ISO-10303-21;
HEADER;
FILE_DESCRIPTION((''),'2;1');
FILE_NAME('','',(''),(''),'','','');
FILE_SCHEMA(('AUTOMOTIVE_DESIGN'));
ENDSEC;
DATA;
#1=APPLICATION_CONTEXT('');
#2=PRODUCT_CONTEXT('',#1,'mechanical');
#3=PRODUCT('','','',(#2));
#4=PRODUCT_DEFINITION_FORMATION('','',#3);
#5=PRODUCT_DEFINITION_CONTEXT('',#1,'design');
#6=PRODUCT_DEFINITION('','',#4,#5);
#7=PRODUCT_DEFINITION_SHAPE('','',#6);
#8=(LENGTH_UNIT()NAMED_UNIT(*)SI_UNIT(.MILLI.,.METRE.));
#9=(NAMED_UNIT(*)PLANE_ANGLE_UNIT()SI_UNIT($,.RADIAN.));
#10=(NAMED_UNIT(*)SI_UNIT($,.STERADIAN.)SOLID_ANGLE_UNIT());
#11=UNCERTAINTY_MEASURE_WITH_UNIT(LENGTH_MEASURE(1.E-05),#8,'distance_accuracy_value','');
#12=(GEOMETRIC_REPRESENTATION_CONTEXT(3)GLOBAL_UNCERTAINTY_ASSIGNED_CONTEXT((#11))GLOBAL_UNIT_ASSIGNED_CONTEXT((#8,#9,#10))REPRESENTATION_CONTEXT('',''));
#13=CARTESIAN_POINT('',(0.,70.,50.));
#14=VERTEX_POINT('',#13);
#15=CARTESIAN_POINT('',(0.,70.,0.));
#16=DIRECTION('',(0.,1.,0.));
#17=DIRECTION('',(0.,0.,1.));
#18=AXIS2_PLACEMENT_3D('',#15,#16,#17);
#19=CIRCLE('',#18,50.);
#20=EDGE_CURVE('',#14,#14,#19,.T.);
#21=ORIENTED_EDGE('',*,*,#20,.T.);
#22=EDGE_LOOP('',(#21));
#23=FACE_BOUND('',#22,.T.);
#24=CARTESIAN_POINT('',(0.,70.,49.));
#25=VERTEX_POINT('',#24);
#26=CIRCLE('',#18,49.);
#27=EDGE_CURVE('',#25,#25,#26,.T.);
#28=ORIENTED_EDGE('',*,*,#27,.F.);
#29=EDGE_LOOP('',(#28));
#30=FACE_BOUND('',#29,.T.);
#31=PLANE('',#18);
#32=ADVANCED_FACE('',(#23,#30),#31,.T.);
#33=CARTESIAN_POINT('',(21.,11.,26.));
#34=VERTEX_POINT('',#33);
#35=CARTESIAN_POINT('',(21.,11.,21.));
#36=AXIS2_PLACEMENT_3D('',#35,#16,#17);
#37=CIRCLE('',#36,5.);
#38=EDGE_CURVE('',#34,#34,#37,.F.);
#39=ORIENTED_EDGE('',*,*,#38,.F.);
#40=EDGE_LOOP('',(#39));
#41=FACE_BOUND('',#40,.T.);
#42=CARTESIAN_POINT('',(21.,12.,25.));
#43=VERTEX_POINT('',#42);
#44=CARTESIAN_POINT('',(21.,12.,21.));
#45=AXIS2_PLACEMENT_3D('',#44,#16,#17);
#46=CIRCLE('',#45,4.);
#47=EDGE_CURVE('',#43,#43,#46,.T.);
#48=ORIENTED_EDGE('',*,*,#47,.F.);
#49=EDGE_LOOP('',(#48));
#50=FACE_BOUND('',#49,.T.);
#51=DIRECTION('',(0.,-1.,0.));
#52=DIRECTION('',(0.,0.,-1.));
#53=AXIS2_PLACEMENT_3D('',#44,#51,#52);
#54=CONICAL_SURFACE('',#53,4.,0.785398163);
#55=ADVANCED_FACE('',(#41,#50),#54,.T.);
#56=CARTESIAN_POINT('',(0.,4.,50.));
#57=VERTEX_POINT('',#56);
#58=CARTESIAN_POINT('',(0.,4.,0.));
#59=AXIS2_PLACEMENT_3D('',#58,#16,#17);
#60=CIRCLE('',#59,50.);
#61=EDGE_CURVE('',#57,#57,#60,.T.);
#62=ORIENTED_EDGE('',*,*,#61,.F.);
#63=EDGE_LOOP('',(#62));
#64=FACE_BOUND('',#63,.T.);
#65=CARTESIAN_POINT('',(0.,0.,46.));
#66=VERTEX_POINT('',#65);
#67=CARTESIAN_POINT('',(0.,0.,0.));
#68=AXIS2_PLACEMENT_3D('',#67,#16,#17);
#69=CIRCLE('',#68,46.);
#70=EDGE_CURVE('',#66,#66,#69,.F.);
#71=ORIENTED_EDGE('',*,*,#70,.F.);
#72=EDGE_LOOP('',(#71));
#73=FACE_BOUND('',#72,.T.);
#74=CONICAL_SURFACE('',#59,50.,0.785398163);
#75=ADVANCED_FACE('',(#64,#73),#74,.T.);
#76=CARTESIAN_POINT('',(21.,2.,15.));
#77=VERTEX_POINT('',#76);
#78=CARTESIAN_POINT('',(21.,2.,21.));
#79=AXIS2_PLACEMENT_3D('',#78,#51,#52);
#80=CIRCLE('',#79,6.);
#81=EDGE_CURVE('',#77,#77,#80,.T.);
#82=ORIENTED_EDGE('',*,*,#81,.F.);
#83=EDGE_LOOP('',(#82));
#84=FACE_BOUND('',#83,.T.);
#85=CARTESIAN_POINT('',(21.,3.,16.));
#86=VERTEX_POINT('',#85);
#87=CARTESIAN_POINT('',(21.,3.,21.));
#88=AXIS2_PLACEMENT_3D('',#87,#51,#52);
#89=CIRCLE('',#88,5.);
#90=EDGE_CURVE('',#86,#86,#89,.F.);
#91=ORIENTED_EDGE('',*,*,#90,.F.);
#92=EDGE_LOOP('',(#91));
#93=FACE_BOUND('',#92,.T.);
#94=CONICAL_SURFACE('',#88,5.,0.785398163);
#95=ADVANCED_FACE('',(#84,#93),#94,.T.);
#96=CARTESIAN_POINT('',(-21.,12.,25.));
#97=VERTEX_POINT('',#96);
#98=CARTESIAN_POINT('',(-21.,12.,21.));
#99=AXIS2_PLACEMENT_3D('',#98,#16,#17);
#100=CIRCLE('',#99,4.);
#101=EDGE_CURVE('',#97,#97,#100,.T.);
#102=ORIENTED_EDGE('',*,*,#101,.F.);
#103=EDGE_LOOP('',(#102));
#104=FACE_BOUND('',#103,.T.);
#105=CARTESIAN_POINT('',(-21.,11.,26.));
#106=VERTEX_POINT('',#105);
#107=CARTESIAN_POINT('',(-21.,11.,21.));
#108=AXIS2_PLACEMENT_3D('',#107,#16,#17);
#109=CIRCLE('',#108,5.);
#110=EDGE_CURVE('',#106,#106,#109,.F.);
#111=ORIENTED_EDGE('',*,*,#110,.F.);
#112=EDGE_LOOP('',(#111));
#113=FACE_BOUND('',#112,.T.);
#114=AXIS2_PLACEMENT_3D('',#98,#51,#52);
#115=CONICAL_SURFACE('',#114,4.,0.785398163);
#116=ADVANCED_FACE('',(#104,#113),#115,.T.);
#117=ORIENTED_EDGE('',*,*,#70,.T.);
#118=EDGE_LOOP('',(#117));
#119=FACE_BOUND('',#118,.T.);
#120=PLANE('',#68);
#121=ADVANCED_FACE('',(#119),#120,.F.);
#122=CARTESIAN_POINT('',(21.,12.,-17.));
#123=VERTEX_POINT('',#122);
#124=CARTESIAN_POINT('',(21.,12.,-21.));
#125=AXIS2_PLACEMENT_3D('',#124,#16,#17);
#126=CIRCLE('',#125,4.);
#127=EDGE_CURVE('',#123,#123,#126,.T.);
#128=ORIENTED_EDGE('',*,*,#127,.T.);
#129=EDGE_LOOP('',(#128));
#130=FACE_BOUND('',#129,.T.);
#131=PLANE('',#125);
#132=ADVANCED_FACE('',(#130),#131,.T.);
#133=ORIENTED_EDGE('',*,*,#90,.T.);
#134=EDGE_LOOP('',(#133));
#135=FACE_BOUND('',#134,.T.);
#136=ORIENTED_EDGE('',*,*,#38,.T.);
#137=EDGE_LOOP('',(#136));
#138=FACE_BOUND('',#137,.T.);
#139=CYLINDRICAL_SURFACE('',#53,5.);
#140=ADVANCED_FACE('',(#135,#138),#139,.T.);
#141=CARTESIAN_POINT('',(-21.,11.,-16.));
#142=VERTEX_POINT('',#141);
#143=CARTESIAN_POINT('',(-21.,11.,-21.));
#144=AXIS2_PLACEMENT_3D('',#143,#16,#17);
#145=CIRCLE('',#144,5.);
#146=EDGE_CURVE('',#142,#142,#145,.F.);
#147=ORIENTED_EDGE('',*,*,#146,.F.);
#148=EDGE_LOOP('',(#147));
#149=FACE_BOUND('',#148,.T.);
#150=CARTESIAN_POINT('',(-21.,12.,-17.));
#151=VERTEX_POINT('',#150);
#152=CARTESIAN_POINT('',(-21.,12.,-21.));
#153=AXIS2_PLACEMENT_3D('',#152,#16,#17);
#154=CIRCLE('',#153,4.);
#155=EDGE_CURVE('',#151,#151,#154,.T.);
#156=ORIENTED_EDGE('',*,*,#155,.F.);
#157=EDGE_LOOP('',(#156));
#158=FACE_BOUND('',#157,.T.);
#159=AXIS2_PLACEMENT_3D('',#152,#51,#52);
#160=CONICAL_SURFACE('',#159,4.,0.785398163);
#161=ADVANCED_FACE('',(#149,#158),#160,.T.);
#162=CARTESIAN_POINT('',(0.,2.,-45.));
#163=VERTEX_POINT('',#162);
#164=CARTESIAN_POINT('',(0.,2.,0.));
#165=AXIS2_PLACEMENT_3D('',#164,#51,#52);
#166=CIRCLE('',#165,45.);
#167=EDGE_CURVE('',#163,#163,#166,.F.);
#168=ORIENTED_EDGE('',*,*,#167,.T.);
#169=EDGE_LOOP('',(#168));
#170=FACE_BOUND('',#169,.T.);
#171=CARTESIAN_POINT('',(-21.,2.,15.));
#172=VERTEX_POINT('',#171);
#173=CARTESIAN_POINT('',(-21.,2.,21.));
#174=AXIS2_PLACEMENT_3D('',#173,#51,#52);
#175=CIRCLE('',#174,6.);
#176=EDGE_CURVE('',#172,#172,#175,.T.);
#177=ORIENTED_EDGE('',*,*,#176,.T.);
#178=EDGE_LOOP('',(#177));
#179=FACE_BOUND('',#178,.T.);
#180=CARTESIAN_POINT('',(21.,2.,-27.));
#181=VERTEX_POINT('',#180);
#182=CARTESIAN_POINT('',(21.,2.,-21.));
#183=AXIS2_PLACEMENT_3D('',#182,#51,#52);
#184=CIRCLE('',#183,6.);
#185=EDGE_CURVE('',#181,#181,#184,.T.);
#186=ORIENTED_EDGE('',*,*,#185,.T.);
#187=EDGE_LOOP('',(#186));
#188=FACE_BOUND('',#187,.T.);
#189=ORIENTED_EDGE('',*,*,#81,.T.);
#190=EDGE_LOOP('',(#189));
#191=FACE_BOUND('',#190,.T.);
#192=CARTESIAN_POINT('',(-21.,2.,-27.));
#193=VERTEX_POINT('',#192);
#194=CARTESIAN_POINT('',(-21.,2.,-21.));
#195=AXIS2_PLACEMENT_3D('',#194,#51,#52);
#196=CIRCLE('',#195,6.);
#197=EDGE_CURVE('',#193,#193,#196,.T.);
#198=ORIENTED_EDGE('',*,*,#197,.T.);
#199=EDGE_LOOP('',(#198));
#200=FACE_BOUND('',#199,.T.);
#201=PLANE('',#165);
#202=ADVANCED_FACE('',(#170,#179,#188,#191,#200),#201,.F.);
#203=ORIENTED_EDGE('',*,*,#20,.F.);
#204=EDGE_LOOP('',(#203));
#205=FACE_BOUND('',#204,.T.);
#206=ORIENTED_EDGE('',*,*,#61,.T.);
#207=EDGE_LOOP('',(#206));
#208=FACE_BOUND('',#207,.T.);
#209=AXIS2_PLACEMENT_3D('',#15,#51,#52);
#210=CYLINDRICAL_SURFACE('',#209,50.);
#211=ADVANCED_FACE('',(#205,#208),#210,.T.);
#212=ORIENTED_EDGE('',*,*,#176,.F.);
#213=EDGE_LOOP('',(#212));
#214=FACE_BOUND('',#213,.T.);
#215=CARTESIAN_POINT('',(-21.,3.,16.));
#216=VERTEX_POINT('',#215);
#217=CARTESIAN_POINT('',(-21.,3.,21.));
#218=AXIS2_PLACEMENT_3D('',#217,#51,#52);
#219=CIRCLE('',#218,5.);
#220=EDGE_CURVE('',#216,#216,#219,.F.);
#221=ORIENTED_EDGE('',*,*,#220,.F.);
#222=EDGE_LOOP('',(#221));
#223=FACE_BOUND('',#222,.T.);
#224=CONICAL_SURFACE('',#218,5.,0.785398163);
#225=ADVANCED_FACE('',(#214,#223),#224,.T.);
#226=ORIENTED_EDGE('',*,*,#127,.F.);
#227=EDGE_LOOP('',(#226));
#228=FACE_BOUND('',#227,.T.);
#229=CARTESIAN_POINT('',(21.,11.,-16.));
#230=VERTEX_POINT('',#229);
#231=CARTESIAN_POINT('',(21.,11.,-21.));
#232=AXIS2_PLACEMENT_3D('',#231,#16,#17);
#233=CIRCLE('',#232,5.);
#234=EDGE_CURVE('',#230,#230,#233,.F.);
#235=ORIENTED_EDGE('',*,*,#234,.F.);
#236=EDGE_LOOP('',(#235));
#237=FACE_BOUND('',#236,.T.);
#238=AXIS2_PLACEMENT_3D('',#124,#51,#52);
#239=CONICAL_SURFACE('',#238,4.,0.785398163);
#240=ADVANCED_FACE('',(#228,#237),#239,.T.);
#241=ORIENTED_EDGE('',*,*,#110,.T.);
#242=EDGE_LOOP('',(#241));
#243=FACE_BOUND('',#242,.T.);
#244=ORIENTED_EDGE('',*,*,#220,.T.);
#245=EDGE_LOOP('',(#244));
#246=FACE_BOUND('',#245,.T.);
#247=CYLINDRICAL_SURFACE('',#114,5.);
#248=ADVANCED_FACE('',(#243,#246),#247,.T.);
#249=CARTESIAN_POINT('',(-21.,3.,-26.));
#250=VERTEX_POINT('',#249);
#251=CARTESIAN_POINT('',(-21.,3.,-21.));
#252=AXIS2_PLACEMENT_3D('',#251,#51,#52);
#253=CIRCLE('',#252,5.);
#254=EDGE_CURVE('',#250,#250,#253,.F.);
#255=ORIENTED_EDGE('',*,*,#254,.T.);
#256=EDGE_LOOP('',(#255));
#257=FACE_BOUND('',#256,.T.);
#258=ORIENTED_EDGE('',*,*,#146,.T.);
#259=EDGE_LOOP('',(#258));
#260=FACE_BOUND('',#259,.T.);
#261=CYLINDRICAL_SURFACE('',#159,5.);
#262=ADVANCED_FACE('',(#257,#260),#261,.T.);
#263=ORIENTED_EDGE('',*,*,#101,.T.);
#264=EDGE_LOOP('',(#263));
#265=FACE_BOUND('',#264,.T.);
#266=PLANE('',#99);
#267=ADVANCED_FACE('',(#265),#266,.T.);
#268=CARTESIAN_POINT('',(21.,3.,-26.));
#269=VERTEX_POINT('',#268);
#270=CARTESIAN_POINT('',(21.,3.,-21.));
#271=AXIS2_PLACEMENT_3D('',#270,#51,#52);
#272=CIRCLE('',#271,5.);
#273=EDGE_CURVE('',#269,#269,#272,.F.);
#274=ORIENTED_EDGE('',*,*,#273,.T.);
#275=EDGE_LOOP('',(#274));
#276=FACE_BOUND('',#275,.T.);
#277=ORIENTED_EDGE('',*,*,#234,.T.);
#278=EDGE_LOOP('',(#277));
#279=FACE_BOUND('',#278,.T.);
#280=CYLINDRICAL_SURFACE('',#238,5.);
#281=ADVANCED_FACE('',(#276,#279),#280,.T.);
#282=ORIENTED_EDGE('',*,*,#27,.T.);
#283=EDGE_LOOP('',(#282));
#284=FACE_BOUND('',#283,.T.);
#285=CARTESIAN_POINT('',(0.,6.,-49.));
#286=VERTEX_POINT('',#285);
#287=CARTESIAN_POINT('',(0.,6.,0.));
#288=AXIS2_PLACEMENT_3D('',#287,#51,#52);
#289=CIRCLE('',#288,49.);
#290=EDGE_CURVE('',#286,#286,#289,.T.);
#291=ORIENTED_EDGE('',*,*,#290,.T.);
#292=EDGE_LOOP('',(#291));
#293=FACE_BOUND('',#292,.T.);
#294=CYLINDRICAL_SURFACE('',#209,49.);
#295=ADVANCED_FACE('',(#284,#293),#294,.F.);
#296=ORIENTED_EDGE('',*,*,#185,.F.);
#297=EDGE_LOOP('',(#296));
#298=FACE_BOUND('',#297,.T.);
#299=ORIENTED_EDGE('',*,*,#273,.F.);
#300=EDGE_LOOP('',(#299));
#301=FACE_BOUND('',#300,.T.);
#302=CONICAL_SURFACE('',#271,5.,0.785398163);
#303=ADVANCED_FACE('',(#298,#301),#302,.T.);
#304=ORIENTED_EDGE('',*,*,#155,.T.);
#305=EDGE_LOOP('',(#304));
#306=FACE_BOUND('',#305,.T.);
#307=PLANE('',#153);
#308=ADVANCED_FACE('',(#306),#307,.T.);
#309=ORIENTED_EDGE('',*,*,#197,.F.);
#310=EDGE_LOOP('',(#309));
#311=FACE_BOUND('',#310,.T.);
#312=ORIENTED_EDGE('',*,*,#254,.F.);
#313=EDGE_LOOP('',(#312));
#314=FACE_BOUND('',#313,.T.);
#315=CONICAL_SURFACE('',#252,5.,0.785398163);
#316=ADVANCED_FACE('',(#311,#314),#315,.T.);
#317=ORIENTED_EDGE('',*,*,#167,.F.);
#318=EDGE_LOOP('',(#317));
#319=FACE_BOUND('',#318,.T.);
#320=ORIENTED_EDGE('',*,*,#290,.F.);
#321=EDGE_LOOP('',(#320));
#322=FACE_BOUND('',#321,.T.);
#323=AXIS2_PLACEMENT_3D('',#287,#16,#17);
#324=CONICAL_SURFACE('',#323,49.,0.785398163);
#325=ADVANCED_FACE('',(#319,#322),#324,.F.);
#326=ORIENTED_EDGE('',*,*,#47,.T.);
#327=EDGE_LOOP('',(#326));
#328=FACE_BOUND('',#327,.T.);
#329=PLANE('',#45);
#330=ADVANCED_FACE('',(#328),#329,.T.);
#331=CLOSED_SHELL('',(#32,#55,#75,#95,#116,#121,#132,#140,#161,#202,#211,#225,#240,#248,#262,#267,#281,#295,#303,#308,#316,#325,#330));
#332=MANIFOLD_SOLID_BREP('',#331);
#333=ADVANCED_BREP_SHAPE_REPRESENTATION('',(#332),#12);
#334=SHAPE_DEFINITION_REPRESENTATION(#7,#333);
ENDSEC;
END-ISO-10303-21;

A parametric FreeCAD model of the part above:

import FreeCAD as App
import Part
import Sketcher
from FreeCAD import Vector


def edges_at(feature, points):
    """Names of the edges that pass closest to the given points."""
    edges = feature.Shape.Edges
    near = lambda p: min(range(len(edges)), key=lambda i: edges[i].distToShape(Part.Vertex(*p))[0])
    return sorted({f"Edge{near(p) + 1}" for p in points})

doc = App.newDocument("Part")
body = doc.addObject("PartDesign::Body", "Body")

sketch1 = doc.addObject("Sketcher::SketchObject", "Sketch")
body.addObject(sketch1)
sketch1.AttachmentSupport = (doc.XZ_Plane, [""])
sketch1.MapMode = "FlatFace"
sketch1.addGeometry(Part.Circle(Vector(0, 0, 0), Vector(0, 0, 1), 50), False)
sketch1.addGeometry(Part.Circle(Vector(0, 0, 0), Vector(0, 0, 1), 49), False)
sketch1.addConstraint(Sketcher.Constraint("Coincident", 0, 3, -1, 1))
sketch1.addConstraint(Sketcher.Constraint("Coincident", 1, 3, -1, 1))
sketch1.addConstraint(Sketcher.Constraint("Diameter", 0, 100.0))
sketch1.addConstraint(Sketcher.Constraint("Diameter", 1, 98.0))
pad1 = doc.addObject("PartDesign::Pad", "Pad")
body.addObject(pad1)
pad1.Profile = sketch1
pad1.Length = 70
pad1.Reversed = True

sketch2 = doc.addObject("Sketcher::SketchObject", "Sketch001")
body.addObject(sketch2)
sketch2.AttachmentSupport = (doc.XZ_Plane, [""])
sketch2.MapMode = "FlatFace"
sketch2.addGeometry(Part.Circle(Vector(0, 0, 0), Vector(0, 0, 1), 50), False)
sketch2.addConstraint(Sketcher.Constraint("Coincident", 0, 3, -1, 1))
sketch2.addConstraint(Sketcher.Constraint("Diameter", 0, 100.0))
pad2 = doc.addObject("PartDesign::Pad", "Pad001")
body.addObject(pad2)
pad2.Profile = sketch2
pad2.Length = 2
pad2.Reversed = True
doc.recompute()

chamfer = doc.addObject("PartDesign::Chamfer", "Chamfer")
body.addObject(chamfer)
chamfer.Base = (pad2, edges_at(pad2, [(0, 2, -49)]))
chamfer.Size = 4
doc.recompute()

chamfer2 = doc.addObject("PartDesign::Chamfer", "Chamfer001")
body.addObject(chamfer2)
chamfer2.Base = (chamfer, edges_at(chamfer, [(0, 0, -50)]))
chamfer2.Size = 4

sketch3 = doc.addObject("Sketcher::SketchObject", "Sketch002")
body.addObject(sketch3)
sketch3.AttachmentSupport = (doc.XZ_Plane, [""])
sketch3.MapMode = "FlatFace"
sketch3.AttachmentOffset = App.Placement(Vector(0, 0, -2), App.Rotation())
sketch3.addGeometry(Part.Circle(Vector(-21, -21, 0), Vector(0, 0, 1), 5), False)
sketch3.addGeometry(Part.Circle(Vector(21, -21, 0), Vector(0, 0, 1), 5), False)
sketch3.addGeometry(Part.Circle(Vector(21, 21, 0), Vector(0, 0, 1), 5), False)
sketch3.addGeometry(Part.Circle(Vector(-21, 21, 0), Vector(0, 0, 1), 5), False)
sketch3.addConstraint(Sketcher.Constraint("Equal", 0, 1))
sketch3.addConstraint(Sketcher.Constraint("Equal", 1, 2))
sketch3.addConstraint(Sketcher.Constraint("Equal", 2, 3))
sketch3.addConstraint(Sketcher.Constraint("Symmetric", 0, 3, 2, 3, -1, 1))
sketch3.addConstraint(Sketcher.Constraint("Symmetric", 1, 3, 3, 3, -1, 1))
sketch3.addConstraint(Sketcher.Constraint("Symmetric", 0, 3, 1, 3, -2))
sketch3.addConstraint(Sketcher.Constraint("Diameter", 0, 10.0))
sketch3.addConstraint(Sketcher.Constraint("DistanceX", 0, 3, -1, 1, 21.0))
sketch3.addConstraint(Sketcher.Constraint("DistanceY", 0, 3, -1, 1, 21.0))
pad3 = doc.addObject("PartDesign::Pad", "Pad002")
body.addObject(pad3)
pad3.Profile = sketch3
pad3.Length = 10
pad3.Reversed = True
doc.recompute()

chamfer3 = doc.addObject("PartDesign::Chamfer", "Chamfer002")
body.addObject(chamfer3)
chamfer3.Base = (pad3, edges_at(pad3, [
    (-21, 12, -16),
    (21, 12, -16),
    (21, 12, 26),
    (-21, 12, 26),
]))
chamfer3.Size = 1
doc.recompute()

chamfer4 = doc.addObject("PartDesign::Chamfer", "Chamfer003")
body.addObject(chamfer4)
chamfer4.Base = (chamfer3, edges_at(chamfer3, [
    (-21, 2, -16),
    (21, 2, -16),
    (21, 2, 26),
    (-21, 2, 26),
]))
chamfer4.Size = 1

doc.recompute()
